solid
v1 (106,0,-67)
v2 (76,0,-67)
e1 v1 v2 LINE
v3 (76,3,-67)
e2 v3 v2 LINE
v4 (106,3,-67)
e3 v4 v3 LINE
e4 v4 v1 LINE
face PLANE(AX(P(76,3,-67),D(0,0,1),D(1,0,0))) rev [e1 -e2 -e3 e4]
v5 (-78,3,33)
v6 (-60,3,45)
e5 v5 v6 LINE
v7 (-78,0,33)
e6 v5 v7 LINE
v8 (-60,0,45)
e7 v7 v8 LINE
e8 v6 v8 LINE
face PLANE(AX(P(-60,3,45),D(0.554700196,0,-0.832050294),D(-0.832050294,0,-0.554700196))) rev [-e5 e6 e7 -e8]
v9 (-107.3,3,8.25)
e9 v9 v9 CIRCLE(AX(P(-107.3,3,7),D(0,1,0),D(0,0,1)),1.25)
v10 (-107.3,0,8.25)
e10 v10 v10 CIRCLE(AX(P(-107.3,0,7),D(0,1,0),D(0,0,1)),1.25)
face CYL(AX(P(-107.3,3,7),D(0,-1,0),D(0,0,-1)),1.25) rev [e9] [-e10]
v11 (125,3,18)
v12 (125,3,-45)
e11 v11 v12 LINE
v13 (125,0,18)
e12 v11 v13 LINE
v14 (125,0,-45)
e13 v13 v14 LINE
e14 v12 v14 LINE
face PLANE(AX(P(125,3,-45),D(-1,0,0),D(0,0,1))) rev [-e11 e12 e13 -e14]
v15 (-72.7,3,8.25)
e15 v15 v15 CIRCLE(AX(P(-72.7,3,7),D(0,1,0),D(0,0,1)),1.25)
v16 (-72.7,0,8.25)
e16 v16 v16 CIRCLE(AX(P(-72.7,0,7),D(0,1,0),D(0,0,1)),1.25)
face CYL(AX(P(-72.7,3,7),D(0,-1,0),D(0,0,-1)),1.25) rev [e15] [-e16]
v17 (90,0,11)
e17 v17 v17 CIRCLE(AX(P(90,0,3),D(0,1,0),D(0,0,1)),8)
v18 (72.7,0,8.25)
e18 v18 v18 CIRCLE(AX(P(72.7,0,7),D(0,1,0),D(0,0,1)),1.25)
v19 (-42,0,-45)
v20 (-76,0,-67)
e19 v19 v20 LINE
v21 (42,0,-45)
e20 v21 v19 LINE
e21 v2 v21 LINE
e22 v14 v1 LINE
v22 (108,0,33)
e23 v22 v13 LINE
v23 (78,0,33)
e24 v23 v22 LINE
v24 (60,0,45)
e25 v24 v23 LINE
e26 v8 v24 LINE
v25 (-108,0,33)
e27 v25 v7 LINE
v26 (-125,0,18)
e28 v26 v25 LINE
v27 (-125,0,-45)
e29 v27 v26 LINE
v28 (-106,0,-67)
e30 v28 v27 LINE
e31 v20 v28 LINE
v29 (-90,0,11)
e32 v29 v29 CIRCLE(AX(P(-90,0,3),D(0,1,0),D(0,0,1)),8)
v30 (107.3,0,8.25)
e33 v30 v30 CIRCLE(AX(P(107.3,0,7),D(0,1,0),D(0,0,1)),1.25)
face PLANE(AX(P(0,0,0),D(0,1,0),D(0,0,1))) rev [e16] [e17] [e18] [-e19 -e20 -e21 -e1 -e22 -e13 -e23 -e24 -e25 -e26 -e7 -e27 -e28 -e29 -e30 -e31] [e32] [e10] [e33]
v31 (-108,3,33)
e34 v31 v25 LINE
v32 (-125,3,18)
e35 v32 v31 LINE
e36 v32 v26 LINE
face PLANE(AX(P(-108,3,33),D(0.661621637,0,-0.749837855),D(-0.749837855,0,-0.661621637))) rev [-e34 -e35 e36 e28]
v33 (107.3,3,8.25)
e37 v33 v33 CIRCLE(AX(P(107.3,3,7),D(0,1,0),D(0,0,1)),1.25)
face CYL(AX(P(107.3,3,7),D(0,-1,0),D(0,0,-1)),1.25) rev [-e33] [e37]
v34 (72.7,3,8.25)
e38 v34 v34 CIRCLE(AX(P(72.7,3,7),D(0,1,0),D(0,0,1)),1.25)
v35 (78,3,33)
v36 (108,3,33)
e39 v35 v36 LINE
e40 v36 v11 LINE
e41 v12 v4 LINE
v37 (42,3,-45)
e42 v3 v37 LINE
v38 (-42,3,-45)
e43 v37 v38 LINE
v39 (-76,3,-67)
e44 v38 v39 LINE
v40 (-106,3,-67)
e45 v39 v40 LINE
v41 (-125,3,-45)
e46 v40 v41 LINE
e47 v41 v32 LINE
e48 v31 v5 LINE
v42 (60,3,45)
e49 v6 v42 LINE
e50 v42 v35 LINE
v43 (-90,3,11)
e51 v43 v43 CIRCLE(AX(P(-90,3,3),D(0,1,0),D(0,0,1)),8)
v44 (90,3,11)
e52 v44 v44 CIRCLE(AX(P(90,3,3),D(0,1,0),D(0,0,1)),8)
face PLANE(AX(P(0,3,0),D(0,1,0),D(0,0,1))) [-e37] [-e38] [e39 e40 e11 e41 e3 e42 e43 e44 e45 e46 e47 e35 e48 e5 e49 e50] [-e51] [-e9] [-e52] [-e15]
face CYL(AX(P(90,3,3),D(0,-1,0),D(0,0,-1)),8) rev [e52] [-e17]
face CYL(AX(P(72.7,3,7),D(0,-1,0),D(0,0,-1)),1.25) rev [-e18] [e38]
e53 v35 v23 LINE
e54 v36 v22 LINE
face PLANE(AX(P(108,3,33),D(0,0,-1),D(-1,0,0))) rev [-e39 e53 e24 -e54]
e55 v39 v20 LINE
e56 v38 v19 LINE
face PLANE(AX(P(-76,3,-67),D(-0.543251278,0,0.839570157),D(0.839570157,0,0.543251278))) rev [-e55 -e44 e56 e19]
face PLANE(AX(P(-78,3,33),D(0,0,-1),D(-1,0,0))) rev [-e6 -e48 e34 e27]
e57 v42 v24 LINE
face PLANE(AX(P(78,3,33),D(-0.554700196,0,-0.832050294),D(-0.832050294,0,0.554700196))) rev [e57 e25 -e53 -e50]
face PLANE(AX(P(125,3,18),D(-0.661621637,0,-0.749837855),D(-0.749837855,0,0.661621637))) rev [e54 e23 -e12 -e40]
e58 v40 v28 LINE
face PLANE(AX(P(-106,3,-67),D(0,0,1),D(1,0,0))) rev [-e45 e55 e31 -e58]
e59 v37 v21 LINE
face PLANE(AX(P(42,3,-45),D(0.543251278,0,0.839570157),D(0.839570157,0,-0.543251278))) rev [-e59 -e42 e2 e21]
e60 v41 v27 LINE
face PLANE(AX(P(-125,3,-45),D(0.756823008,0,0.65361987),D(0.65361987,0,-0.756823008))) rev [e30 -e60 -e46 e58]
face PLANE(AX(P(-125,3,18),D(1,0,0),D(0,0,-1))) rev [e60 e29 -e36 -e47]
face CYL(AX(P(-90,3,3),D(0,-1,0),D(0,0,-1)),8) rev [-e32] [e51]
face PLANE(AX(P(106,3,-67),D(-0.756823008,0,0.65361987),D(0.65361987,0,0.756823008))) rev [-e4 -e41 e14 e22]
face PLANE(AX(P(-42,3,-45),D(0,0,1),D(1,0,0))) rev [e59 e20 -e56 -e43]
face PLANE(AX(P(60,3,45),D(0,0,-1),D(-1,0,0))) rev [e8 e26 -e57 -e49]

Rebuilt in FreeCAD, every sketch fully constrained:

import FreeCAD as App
import Part
import Sketcher


def add_polygon(sketch, points):
    """Adds a closed chain of lines whose ends are joined by coincident constraints."""
    first, n = sketch.GeometryCount, len(points)
    for a, b in zip(points, points[1:] + points[:1]):
        sketch.addGeometry(Part.LineSegment(App.Vector(*a, 0), App.Vector(*b, 0)), False)
    for i in range(n):
        sketch.addConstraint(Sketcher.Constraint("Coincident", first + i, 2, first + (i + 1) % n, 1))

doc = App.newDocument("Part")
body = doc.addObject("PartDesign::Body", "Body")

# Sketch on XZ plane
sketch1 = body.newObject("Sketcher::SketchObject", "Sketch")
sketch1.AttachmentSupport = (doc.getObject("XZ_Plane"), [""])
sketch1.MapMode = "FlatFace"
add_polygon(sketch1, [(42, -45), (-42, -45), (-76, -67), (-106, -67), (-125, -45), (-125, 18), (-108, 33), (-78, 33), (-60, 45), (60, 45), (78, 33), (108, 33), (125, 18), (125, -45), (106, -67), (76, -67)])  # lines 0-15
sketch1.addGeometry(Part.Circle(App.Vector(107.3, 7, 0), App.Vector(0, 0, 1), 1.2), False)  # 16
sketch1.addGeometry(Part.Circle(App.Vector(72.7, 7, 0), App.Vector(0, 0, 1), 1.2), False)  # 17
sketch1.addGeometry(Part.Circle(App.Vector(-72.7, 7, 0), App.Vector(0, 0, 1), 1.2), False)  # 18
sketch1.addGeometry(Part.Circle(App.Vector(-107.3, 7, 0), App.Vector(0, 0, 1), 1.2), False)  # 19
sketch1.addGeometry(Part.Circle(App.Vector(90, 3, 0), App.Vector(0, 0, 1), 8), False)  # 20
sketch1.addGeometry(Part.Circle(App.Vector(-90, 3, 0), App.Vector(0, 0, 1), 8), False)  # 21
sketch1.addConstraint(Sketcher.Constraint("Horizontal", 0))
sketch1.addConstraint(Sketcher.Constraint("Horizontal", 2))
sketch1.addConstraint(Sketcher.Constraint("Vertical", 4))
sketch1.addConstraint(Sketcher.Constraint("Horizontal", 6))
sketch1.addConstraint(Sketcher.Constraint("Horizontal", 8))
sketch1.addConstraint(Sketcher.Constraint("Horizontal", 10))
sketch1.addConstraint(Sketcher.Constraint("Vertical", 12))
sketch1.addConstraint(Sketcher.Constraint("Horizontal", 14))
sketch1.addConstraint(Sketcher.Constraint("Equal", 16, 17))
sketch1.addConstraint(Sketcher.Constraint("Equal", 17, 18))
sketch1.addConstraint(Sketcher.Constraint("Equal", 18, 19))
sketch1.addConstraint(Sketcher.Constraint("Equal", 20, 21))
sketch1.addConstraint(Sketcher.Constraint("Symmetric", 17, 3, 18, 3, -2))
sketch1.addConstraint(Sketcher.Constraint("Symmetric", 16, 3, 19, 3, -2))
sketch1.addConstraint(Sketcher.Constraint("Symmetric", 20, 3, 21, 3, -2))
sketch1.addConstraint(Sketcher.Constraint("Symmetric", 6, 2, 9, 2, -2))
sketch1.addConstraint(Sketcher.Constraint("Symmetric", 4, 2, 11, 2, -2))
sketch1.addConstraint(Sketcher.Constraint("Symmetric", 2, 2, 13, 2, -2))
sketch1.addConstraint(Sketcher.Constraint("Horizontal", 16, 3, 17, 3))
sketch1.addConstraint(Sketcher.Constraint("Horizontal", 0, 2, 3, 2))
sketch1.addConstraint(Sketcher.Constraint("Horizontal", 3, 2, 12, 2))
sketch1.addConstraint(Sketcher.Constraint("Equal", 2, 6))
sketch1.addConstraint(Sketcher.Constraint("Equal", 6, 10))
sketch1.addConstraint(Sketcher.Constraint("Equal", 10, 14))
sketch1.addConstraint(Sketcher.Constraint("Equal", 7, 9))
sketch1.addConstraint(Sketcher.Constraint("Equal", 1, 15))
sketch1.addConstraint(Sketcher.Constraint("Diameter", 20, 16.0))
sketch1.addConstraint(Sketcher.Constraint("Diameter", 16, 2.5))
sketch1.addConstraint(Sketcher.Constraint("DistanceX", 0, 2, 0, 1, 84.0))
sketch1.addConstraint(Sketcher.Constraint("DistanceX", 2, 2, 2, 1, 30.0))
sketch1.addConstraint(Sketcher.Constraint("DistanceX", 8, 1, 8, 2, 120.0))
sketch1.addConstraint(Sketcher.Constraint("DistanceY", 4, 1, 4, 2, 63.0))
sketch1.addConstraint(Sketcher.Constraint("DistanceY", -1, 1, 16, 3, 7.0))
sketch1.addConstraint(Sketcher.Constraint("DistanceX", -1, 1, 20, 3, 90.0))
sketch1.addConstraint(Sketcher.Constraint("DistanceY", -1, 1, 20, 3, 3.0))
sketch1.addConstraint(Sketcher.Constraint("DistanceY", 0, 2, -1, 1, 45.0))
sketch1.addConstraint(Sketcher.Constraint("DistanceX", 1, 2, -1, 1, 76.0))
sketch1.addConstraint(Sketcher.Constraint("DistanceY", 1, 2, -1, 1, 67.0))
sketch1.addConstraint(Sketcher.Constraint("DistanceX", 3, 2, -1, 1, 125.0))
sketch1.addConstraint(Sketcher.Constraint("DistanceX", 5, 2, -1, 1, 108.0))
sketch1.addConstraint(Sketcher.Constraint("DistanceY", -1, 1, 5, 2, 33.0))
sketch1.addConstraint(Sketcher.Constraint("DistanceY", -1, 1, 7, 2, 45.0))
sketch1.addConstraint(Sketcher.Constraint("DistanceX", 18, 3, 16, 3, 180.0))
sketch1.addConstraint(Sketcher.Constraint("DistanceX", -1, 1, 16, 3, 107.3))
pad1 = body.newObject("PartDesign::Pad", "Pad")
pad1.Profile = sketch1
pad1.Length = 3
pad1.Reversed = True

doc.recompute()
